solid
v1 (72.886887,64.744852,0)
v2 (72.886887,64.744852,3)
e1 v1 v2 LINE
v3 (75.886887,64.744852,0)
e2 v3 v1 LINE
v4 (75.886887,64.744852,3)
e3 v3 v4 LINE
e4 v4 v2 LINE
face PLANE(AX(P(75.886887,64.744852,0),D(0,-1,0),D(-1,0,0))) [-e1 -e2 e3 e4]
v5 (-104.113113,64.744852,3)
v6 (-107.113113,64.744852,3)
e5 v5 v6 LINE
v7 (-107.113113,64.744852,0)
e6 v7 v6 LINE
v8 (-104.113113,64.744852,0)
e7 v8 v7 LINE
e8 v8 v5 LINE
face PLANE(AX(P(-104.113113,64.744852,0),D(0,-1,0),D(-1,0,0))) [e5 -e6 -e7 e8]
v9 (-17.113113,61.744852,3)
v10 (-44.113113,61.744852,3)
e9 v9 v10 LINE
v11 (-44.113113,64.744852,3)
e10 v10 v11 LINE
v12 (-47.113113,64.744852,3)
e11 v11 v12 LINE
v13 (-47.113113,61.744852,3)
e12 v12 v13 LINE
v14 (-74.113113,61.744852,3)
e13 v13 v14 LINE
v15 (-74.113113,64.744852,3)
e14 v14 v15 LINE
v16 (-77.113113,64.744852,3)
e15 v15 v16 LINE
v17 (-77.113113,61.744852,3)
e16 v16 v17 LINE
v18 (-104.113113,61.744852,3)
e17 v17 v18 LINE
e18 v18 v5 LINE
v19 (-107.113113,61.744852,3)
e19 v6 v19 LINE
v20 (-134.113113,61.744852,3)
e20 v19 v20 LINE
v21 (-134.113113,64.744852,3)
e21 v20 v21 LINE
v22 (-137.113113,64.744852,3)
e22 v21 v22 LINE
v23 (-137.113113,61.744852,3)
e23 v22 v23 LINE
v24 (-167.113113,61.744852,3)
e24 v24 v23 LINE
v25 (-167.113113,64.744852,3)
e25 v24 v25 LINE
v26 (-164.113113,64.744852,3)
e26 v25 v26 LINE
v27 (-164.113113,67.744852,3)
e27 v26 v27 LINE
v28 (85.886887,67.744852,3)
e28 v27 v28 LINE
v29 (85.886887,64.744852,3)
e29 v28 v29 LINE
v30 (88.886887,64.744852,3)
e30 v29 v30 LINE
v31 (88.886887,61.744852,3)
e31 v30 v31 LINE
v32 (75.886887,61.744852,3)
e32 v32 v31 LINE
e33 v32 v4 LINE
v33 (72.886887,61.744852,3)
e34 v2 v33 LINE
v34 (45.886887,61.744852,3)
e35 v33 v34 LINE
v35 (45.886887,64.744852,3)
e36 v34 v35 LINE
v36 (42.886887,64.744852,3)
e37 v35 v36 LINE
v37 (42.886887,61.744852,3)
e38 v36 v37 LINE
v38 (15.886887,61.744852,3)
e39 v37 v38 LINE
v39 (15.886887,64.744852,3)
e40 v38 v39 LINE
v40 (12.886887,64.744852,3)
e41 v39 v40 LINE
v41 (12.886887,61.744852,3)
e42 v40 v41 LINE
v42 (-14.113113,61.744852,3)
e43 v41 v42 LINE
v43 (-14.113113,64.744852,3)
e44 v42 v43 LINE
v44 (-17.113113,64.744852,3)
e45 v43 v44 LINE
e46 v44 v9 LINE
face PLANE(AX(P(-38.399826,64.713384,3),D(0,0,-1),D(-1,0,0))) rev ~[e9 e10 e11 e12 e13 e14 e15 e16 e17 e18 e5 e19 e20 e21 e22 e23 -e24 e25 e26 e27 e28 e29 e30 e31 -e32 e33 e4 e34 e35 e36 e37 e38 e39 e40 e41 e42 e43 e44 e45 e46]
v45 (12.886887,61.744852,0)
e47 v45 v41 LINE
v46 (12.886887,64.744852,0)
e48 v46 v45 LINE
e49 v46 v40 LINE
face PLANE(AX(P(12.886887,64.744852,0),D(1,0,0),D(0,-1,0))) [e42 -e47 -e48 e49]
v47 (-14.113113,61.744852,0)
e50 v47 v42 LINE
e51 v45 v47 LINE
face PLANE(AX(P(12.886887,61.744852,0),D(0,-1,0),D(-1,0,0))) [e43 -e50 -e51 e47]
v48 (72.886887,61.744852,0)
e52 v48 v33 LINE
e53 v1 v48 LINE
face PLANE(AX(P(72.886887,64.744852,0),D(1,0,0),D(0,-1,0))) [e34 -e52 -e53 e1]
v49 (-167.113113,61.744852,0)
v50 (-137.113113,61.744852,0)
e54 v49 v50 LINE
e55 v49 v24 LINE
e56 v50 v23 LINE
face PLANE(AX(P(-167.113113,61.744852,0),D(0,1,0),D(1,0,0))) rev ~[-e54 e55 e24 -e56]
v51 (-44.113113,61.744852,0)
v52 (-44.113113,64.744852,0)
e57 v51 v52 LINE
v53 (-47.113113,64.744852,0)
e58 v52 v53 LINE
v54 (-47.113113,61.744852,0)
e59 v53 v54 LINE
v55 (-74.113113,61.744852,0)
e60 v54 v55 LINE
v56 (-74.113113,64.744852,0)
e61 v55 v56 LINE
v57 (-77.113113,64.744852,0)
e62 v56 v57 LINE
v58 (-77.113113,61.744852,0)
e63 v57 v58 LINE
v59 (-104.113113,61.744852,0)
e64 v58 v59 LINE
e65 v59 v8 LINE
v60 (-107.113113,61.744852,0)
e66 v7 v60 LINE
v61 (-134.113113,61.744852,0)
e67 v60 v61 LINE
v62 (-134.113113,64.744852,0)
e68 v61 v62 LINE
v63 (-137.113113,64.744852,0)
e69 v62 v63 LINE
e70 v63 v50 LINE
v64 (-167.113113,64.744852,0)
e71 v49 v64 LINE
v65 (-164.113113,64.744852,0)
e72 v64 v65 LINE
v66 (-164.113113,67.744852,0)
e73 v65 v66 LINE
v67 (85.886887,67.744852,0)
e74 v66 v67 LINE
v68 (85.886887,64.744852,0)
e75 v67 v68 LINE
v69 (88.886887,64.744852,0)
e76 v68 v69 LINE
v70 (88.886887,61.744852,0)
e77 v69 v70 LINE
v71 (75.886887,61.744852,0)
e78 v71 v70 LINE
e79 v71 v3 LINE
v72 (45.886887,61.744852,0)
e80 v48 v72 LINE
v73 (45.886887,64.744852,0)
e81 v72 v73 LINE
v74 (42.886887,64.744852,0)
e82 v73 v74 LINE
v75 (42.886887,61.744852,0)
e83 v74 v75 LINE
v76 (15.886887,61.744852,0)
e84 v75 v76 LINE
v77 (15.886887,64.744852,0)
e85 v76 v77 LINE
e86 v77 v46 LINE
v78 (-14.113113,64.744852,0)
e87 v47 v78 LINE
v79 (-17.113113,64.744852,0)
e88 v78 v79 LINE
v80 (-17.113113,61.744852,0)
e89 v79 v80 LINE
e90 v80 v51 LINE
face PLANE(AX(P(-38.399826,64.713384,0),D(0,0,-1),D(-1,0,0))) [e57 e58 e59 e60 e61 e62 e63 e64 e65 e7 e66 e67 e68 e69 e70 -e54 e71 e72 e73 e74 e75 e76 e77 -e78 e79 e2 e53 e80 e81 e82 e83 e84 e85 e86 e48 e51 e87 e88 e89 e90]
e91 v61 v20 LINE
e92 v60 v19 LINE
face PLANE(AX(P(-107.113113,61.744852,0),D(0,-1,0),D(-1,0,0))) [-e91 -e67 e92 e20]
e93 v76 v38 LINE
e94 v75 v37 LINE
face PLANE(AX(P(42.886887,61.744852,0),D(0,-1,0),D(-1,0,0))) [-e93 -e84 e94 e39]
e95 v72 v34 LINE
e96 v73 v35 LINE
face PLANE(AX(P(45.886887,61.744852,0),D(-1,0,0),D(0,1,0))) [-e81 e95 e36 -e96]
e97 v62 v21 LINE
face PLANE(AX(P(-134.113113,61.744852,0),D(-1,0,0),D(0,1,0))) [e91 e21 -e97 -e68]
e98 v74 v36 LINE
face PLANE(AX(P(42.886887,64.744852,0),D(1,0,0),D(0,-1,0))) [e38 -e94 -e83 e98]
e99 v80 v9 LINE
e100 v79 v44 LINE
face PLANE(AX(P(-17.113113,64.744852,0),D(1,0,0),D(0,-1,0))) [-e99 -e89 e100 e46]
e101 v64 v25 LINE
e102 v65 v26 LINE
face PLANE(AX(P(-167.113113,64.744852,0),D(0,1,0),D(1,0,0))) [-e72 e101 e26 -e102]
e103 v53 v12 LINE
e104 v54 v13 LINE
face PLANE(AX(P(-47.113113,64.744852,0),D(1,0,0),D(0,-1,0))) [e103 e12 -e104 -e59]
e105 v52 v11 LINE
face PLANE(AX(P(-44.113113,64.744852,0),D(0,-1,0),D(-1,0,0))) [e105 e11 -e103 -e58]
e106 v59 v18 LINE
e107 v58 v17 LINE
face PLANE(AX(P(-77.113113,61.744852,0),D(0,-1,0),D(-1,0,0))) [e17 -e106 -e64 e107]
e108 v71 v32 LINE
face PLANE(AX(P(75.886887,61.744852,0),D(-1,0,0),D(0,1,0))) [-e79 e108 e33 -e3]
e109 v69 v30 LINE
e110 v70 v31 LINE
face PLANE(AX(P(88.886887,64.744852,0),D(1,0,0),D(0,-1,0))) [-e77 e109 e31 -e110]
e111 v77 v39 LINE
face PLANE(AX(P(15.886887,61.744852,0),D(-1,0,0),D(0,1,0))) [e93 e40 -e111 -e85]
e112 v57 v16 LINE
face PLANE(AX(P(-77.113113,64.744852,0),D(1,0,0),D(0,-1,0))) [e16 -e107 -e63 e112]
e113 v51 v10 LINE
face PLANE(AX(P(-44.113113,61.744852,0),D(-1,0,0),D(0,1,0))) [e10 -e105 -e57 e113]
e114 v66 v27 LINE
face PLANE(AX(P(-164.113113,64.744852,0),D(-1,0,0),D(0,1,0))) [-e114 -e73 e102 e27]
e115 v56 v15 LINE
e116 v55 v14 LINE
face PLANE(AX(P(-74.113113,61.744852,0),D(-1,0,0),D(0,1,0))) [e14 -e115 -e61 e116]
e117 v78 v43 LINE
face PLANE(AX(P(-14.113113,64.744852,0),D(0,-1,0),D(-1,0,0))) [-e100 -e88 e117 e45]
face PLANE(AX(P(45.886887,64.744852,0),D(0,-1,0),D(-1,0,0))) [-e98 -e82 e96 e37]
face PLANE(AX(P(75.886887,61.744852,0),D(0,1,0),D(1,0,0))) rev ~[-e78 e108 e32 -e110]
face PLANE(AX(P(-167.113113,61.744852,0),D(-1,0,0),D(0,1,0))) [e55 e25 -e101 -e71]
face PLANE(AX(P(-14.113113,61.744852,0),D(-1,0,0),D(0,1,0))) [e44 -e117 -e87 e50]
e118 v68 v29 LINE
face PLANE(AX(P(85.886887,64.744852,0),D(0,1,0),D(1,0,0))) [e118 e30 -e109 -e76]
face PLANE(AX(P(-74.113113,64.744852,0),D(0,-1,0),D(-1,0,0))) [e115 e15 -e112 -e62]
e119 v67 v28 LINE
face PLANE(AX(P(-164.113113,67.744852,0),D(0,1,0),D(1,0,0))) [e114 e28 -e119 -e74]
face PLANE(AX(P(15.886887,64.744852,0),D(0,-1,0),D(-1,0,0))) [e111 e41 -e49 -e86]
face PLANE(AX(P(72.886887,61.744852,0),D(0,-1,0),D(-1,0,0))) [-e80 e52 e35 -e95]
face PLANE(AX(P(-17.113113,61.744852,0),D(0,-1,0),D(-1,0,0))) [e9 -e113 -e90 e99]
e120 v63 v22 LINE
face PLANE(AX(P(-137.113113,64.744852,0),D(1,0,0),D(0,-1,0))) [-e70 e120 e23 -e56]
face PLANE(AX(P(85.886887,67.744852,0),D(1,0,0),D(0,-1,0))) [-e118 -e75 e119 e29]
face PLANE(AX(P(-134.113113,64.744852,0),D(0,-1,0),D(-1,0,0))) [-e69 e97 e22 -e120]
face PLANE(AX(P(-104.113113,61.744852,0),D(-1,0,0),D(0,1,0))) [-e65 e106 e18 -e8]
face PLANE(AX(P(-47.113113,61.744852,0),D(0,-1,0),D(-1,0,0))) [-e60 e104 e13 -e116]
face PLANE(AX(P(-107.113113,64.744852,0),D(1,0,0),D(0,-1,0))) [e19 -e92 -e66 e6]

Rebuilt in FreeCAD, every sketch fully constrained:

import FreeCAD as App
import Part
import Sketcher
Q = App.Units.Quantity

doc = App.newDocument("Part")
body = doc.addObject("PartDesign::Body", "Body")

# Sketch on XY plane
sketch1 = body.newObject("Sketcher::SketchObject", "Sketch")
sketch1.AttachmentSupport = (doc.getObject("XY_Plane"), [""])
sketch1.MapMode = "FlatFace"
sketch1.addGeometry([
    Part.LineSegment(App.Vector(-107.113113, 61.744852, 0), App.Vector(-107.113113, 64.744852, 0)),  # 0
    Part.LineSegment(App.Vector(-107.113113, 64.744852, 0), App.Vector(-104.113113, 64.744852, 0)),  # 1
    Part.LineSegment(App.Vector(-104.113113, 64.744852, 0), App.Vector(-104.113113, 61.744852, 0)),  # 2
    Part.LineSegment(App.Vector(-104.113113, 61.744852, 0), App.Vector(-77.113113, 61.744852, 0)),  # 3
    Part.LineSegment(App.Vector(-77.113113, 61.744852, 0), App.Vector(-77.113113, 64.744852, 0)),  # 4
    Part.LineSegment(App.Vector(-77.113113, 64.744852, 0), App.Vector(-74.113113, 64.744852, 0)),  # 5
    Part.LineSegment(App.Vector(-74.113113, 64.744852, 0), App.Vector(-74.113113, 61.744852, 0)),  # 6
    Part.LineSegment(App.Vector(-74.113113, 61.744852, 0), App.Vector(-47.113113, 61.744852, 0)),  # 7
    Part.LineSegment(App.Vector(-47.113113, 61.744852, 0), App.Vector(-47.113113, 64.744852, 0)),  # 8
    Part.LineSegment(App.Vector(-47.113113, 64.744852, 0), App.Vector(-44.113113, 64.744852, 0)),  # 9
    Part.LineSegment(App.Vector(-44.113113, 64.744852, 0), App.Vector(-44.113113, 61.744852, 0)),  # 10
    Part.LineSegment(App.Vector(-44.113113, 61.744852, 0), App.Vector(-17.113113, 61.744852, 0)),  # 11
    Part.LineSegment(App.Vector(-17.113113, 61.744852, 0), App.Vector(-17.113113, 64.744852, 0)),  # 12
    Part.LineSegment(App.Vector(-17.113113, 64.744852, 0), App.Vector(-14.113113, 64.744852, 0)),  # 13
    Part.LineSegment(App.Vector(-14.113113, 64.744852, 0), App.Vector(-14.113113, 61.744852, 0)),  # 14
    Part.LineSegment(App.Vector(-14.113113, 61.744852, 0), App.Vector(12.886887, 61.744852, 0)),  # 15
    Part.LineSegment(App.Vector(12.886887, 61.744852, 0), App.Vector(12.886887, 64.744852, 0)),  # 16
    Part.LineSegment(App.Vector(12.886887, 64.744852, 0), App.Vector(15.886887, 64.744852, 0)),  # 17
    Part.LineSegment(App.Vector(15.886887, 64.744852, 0), App.Vector(15.886887, 61.744852, 0)),  # 18
    Part.LineSegment(App.Vector(15.886887, 61.744852, 0), App.Vector(42.886887, 61.744852, 0)),  # 19
    Part.LineSegment(App.Vector(42.886887, 61.744852, 0), App.Vector(42.886887, 64.744852, 0)),  # 20
    Part.LineSegment(App.Vector(42.886887, 64.744852, 0), App.Vector(45.886887, 64.744852, 0)),  # 21
    Part.LineSegment(App.Vector(45.886887, 64.744852, 0), App.Vector(45.886887, 61.744852, 0)),  # 22
    Part.LineSegment(App.Vector(45.886887, 61.744852, 0), App.Vector(72.886887, 61.744852, 0)),  # 23
    Part.LineSegment(App.Vector(72.886887, 61.744852, 0), App.Vector(72.886887, 64.744852, 0)),  # 24
    Part.LineSegment(App.Vector(72.886887, 64.744852, 0), App.Vector(75.886887, 64.744852, 0)),  # 25
    Part.LineSegment(App.Vector(75.886887, 64.744852, 0), App.Vector(75.886887, 61.744852, 0)),  # 26
    Part.LineSegment(App.Vector(75.886887, 61.744852, 0), App.Vector(88.886887, 61.744852, 0)),  # 27
    Part.LineSegment(App.Vector(88.886887, 61.744852, 0), App.Vector(88.886887, 64.744852, 0)),  # 28
    Part.LineSegment(App.Vector(88.886887, 64.744852, 0), App.Vector(85.886887, 64.744852, 0)),  # 29
    Part.LineSegment(App.Vector(85.886887, 64.744852, 0), App.Vector(85.886887, 67.744852, 0)),  # 30
    Part.LineSegment(App.Vector(85.886887, 67.744852, 0), App.Vector(-164.113113, 67.744852, 0)),  # 31
    Part.LineSegment(App.Vector(-164.113113, 67.744852, 0), App.Vector(-164.113113, 64.744852, 0)),  # 32
    Part.LineSegment(App.Vector(-164.113113, 64.744852, 0), App.Vector(-167.113113, 64.744852, 0)),  # 33
    Part.LineSegment(App.Vector(-167.113113, 64.744852, 0), App.Vector(-167.113113, 61.744852, 0)),  # 34
    Part.LineSegment(App.Vector(-167.113113, 61.744852, 0), App.Vector(-137.113113, 61.744852, 0)),  # 35
    Part.LineSegment(App.Vector(-137.113113, 61.744852, 0), App.Vector(-137.113113, 64.744852, 0)),  # 36
    Part.LineSegment(App.Vector(-137.113113, 64.744852, 0), App.Vector(-134.113113, 64.744852, 0)),  # 37
    Part.LineSegment(App.Vector(-134.113113, 64.744852, 0), App.Vector(-134.113113, 61.744852, 0)),  # 38
    Part.LineSegment(App.Vector(-134.113113, 61.744852, 0), App.Vector(-107.113113, 61.744852, 0)),  # 39
], False)
sketch1.addConstraint([
    Sketcher.Constraint("Coincident", 0, 2, 1, 1),
    Sketcher.Constraint("Coincident", 1, 2, 2, 1),
    Sketcher.Constraint("Coincident", 2, 2, 3, 1),
    Sketcher.Constraint("Coincident", 3, 2, 4, 1),
    Sketcher.Constraint("Coincident", 4, 2, 5, 1),
    Sketcher.Constraint("Coincident", 5, 2, 6, 1),
    Sketcher.Constraint("Coincident", 6, 2, 7, 1),
    Sketcher.Constraint("Coincident", 7, 2, 8, 1),
    Sketcher.Constraint("Coincident", 8, 2, 9, 1),
    Sketcher.Constraint("Coincident", 9, 2, 10, 1),
    Sketcher.Constraint("Coincident", 10, 2, 11, 1),
    Sketcher.Constraint("Coincident", 11, 2, 12, 1),
    Sketcher.Constraint("Coincident", 12, 2, 13, 1),
    Sketcher.Constraint("Coincident", 13, 2, 14, 1),
    Sketcher.Constraint("Coincident", 14, 2, 15, 1),
    Sketcher.Constraint("Coincident", 15, 2, 16, 1),
    Sketcher.Constraint("Coincident", 16, 2, 17, 1),
    Sketcher.Constraint("Coincident", 17, 2, 18, 1),
    Sketcher.Constraint("Coincident", 18, 2, 19, 1),
    Sketcher.Constraint("Coincident", 19, 2, 20, 1),
    Sketcher.Constraint("Coincident", 20, 2, 21, 1),
    Sketcher.Constraint("Coincident", 21, 2, 22, 1),
    Sketcher.Constraint("Coincident", 22, 2, 23, 1),
    Sketcher.Constraint("Coincident", 23, 2, 24, 1),
    Sketcher.Constraint("Coincident", 24, 2, 25, 1),
    Sketcher.Constraint("Coincident", 25, 2, 26, 1),
    Sketcher.Constraint("Coincident", 26, 2, 27, 1),
    Sketcher.Constraint("Coincident", 27, 2, 28, 1),
    Sketcher.Constraint("Coincident", 28, 2, 29, 1),
    Sketcher.Constraint("Coincident", 29, 2, 30, 1),
    Sketcher.Constraint("Coincident", 30, 2, 31, 1),
    Sketcher.Constraint("Coincident", 31, 2, 32, 1),
    Sketcher.Constraint("Coincident", 32, 2, 33, 1),
    Sketcher.Constraint("Coincident", 33, 2, 34, 1),
    Sketcher.Constraint("Coincident", 34, 2, 35, 1),
    Sketcher.Constraint("Coincident", 35, 2, 36, 1),
    Sketcher.Constraint("Coincident", 36, 2, 37, 1),
    Sketcher.Constraint("Coincident", 37, 2, 38, 1),
    Sketcher.Constraint("Coincident", 38, 2, 39, 1),
    Sketcher.Constraint("Coincident", 39, 2, 0, 1),
    Sketcher.Constraint("Vertical", 0),
    Sketcher.Constraint("Horizontal", 1),
    Sketcher.Constraint("Vertical", 2),
    Sketcher.Constraint("Horizontal", 3),
    Sketcher.Constraint("Vertical", 4),
    Sketcher.Constraint("Horizontal", 5),
    Sketcher.Constraint("Vertical", 6),
    Sketcher.Constraint("Horizontal", 7),
    Sketcher.Constraint("Vertical", 8),
    Sketcher.Constraint("Horizontal", 9),
    Sketcher.Constraint("Vertical", 10),
    Sketcher.Constraint("Horizontal", 11),
    Sketcher.Constraint("Vertical", 12),
    Sketcher.Constraint("Horizontal", 13),
    Sketcher.Constraint("Vertical", 14),
    Sketcher.Constraint("Horizontal", 15),
    Sketcher.Constraint("Vertical", 16),
    Sketcher.Constraint("Horizontal", 17),
    Sketcher.Constraint("Vertical", 18),
    Sketcher.Constraint("Horizontal", 19),
    Sketcher.Constraint("Vertical", 20),
    Sketcher.Constraint("Horizontal", 21),
    Sketcher.Constraint("Vertical", 22),
    Sketcher.Constraint("Horizontal", 23),
    Sketcher.Constraint("Vertical", 24),
    Sketcher.Constraint("Horizontal", 25),
    Sketcher.Constraint("Vertical", 26),
    Sketcher.Constraint("Horizontal", 27),
    Sketcher.Constraint("Vertical", 28),
    Sketcher.Constraint("Horizontal", 29),
    Sketcher.Constraint("Vertical", 30),
    Sketcher.Constraint("Horizontal", 31),
    Sketcher.Constraint("Vertical", 32),
    Sketcher.Constraint("Horizontal", 33),
    Sketcher.Constraint("Vertical", 34),
    Sketcher.Constraint("Horizontal", 35),
    Sketcher.Constraint("Vertical", 36),
    Sketcher.Constraint("Horizontal", 37),
    Sketcher.Constraint("Vertical", 38),
    Sketcher.Constraint("Horizontal", 39),
    Sketcher.Constraint("Horizontal", 1, 2, 4, 2),
    Sketcher.Constraint("Horizontal", 3, 2, 6, 2),
    Sketcher.Constraint("Horizontal", 5, 2, 8, 2),
    Sketcher.Constraint("Horizontal", 7, 2, 10, 2),
    Sketcher.Constraint("Horizontal", 9, 2, 12, 2),
    Sketcher.Constraint("Horizontal", 11, 2, 14, 2),
    Sketcher.Constraint("Horizontal", 13, 2, 16, 2),
    Sketcher.Constraint("Horizontal", 15, 2, 18, 2),
    Sketcher.Constraint("Horizontal", 17, 2, 20, 2),
    Sketcher.Constraint("Horizontal", 19, 2, 22, 2),
    Sketcher.Constraint("Horizontal", 21, 2, 24, 2),
    Sketcher.Constraint("Horizontal", 23, 2, 26, 2),
    Sketcher.Constraint("Horizontal", 25, 2, 28, 2),
    Sketcher.Constraint("Horizontal", 29, 2, 32, 2),
    Sketcher.Constraint("Horizontal", 27, 2, 34, 2),
    Sketcher.Constraint("Horizontal", 33, 2, 36, 2),
    Sketcher.Constraint("Horizontal", 35, 2, 38, 2),
    Sketcher.Constraint("Equal", 1, 5),
    Sketcher.Constraint("Equal", 3, 7),
    Sketcher.Constraint("Equal", 5, 9),
    Sketcher.Constraint("Equal", 7, 11),
    Sketcher.Constraint("Equal", 9, 13),
    Sketcher.Constraint("Equal", 11, 15),
    Sketcher.Constraint("Equal", 13, 17),
    Sketcher.Constraint("Equal", 15, 19),
    Sketcher.Constraint("Equal", 17, 21),
    Sketcher.Constraint("Equal", 19, 23),
    Sketcher.Constraint("Equal", 21, 25),
    Sketcher.Constraint("Equal", 25, 29),
    Sketcher.Constraint("Equal", 29, 33),
    Sketcher.Constraint("Equal", 33, 37),
    Sketcher.Constraint("Equal", 23, 39),
    Sketcher.Constraint("Equal", 37, 0),
    Sketcher.Constraint("Equal", 28, 30),
    Sketcher.Constraint("DistanceX", 1, 1, 1, 2, Q("3 mm")),
    Sketcher.Constraint("DistanceX", 3, 1, 3, 2, Q("27 mm")),
    Sketcher.Constraint("DistanceX", 27, 1, 27, 2, Q("13 mm")),
    Sketcher.Constraint("DistanceX", 31, 2, 31, 1, Q("250 mm")),
    Sketcher.Constraint("DistanceX", 0, 2, -1, 1, Q("107.113113 mm")),
    Sketcher.Constraint("DistanceY", -1, 1, 0, 2, Q("64.744852 mm")),
])
pad1 = body.newObject("PartDesign::Pad", "Pad")
pad1.Profile = sketch1
pad1.Length = 3

doc.recompute()
